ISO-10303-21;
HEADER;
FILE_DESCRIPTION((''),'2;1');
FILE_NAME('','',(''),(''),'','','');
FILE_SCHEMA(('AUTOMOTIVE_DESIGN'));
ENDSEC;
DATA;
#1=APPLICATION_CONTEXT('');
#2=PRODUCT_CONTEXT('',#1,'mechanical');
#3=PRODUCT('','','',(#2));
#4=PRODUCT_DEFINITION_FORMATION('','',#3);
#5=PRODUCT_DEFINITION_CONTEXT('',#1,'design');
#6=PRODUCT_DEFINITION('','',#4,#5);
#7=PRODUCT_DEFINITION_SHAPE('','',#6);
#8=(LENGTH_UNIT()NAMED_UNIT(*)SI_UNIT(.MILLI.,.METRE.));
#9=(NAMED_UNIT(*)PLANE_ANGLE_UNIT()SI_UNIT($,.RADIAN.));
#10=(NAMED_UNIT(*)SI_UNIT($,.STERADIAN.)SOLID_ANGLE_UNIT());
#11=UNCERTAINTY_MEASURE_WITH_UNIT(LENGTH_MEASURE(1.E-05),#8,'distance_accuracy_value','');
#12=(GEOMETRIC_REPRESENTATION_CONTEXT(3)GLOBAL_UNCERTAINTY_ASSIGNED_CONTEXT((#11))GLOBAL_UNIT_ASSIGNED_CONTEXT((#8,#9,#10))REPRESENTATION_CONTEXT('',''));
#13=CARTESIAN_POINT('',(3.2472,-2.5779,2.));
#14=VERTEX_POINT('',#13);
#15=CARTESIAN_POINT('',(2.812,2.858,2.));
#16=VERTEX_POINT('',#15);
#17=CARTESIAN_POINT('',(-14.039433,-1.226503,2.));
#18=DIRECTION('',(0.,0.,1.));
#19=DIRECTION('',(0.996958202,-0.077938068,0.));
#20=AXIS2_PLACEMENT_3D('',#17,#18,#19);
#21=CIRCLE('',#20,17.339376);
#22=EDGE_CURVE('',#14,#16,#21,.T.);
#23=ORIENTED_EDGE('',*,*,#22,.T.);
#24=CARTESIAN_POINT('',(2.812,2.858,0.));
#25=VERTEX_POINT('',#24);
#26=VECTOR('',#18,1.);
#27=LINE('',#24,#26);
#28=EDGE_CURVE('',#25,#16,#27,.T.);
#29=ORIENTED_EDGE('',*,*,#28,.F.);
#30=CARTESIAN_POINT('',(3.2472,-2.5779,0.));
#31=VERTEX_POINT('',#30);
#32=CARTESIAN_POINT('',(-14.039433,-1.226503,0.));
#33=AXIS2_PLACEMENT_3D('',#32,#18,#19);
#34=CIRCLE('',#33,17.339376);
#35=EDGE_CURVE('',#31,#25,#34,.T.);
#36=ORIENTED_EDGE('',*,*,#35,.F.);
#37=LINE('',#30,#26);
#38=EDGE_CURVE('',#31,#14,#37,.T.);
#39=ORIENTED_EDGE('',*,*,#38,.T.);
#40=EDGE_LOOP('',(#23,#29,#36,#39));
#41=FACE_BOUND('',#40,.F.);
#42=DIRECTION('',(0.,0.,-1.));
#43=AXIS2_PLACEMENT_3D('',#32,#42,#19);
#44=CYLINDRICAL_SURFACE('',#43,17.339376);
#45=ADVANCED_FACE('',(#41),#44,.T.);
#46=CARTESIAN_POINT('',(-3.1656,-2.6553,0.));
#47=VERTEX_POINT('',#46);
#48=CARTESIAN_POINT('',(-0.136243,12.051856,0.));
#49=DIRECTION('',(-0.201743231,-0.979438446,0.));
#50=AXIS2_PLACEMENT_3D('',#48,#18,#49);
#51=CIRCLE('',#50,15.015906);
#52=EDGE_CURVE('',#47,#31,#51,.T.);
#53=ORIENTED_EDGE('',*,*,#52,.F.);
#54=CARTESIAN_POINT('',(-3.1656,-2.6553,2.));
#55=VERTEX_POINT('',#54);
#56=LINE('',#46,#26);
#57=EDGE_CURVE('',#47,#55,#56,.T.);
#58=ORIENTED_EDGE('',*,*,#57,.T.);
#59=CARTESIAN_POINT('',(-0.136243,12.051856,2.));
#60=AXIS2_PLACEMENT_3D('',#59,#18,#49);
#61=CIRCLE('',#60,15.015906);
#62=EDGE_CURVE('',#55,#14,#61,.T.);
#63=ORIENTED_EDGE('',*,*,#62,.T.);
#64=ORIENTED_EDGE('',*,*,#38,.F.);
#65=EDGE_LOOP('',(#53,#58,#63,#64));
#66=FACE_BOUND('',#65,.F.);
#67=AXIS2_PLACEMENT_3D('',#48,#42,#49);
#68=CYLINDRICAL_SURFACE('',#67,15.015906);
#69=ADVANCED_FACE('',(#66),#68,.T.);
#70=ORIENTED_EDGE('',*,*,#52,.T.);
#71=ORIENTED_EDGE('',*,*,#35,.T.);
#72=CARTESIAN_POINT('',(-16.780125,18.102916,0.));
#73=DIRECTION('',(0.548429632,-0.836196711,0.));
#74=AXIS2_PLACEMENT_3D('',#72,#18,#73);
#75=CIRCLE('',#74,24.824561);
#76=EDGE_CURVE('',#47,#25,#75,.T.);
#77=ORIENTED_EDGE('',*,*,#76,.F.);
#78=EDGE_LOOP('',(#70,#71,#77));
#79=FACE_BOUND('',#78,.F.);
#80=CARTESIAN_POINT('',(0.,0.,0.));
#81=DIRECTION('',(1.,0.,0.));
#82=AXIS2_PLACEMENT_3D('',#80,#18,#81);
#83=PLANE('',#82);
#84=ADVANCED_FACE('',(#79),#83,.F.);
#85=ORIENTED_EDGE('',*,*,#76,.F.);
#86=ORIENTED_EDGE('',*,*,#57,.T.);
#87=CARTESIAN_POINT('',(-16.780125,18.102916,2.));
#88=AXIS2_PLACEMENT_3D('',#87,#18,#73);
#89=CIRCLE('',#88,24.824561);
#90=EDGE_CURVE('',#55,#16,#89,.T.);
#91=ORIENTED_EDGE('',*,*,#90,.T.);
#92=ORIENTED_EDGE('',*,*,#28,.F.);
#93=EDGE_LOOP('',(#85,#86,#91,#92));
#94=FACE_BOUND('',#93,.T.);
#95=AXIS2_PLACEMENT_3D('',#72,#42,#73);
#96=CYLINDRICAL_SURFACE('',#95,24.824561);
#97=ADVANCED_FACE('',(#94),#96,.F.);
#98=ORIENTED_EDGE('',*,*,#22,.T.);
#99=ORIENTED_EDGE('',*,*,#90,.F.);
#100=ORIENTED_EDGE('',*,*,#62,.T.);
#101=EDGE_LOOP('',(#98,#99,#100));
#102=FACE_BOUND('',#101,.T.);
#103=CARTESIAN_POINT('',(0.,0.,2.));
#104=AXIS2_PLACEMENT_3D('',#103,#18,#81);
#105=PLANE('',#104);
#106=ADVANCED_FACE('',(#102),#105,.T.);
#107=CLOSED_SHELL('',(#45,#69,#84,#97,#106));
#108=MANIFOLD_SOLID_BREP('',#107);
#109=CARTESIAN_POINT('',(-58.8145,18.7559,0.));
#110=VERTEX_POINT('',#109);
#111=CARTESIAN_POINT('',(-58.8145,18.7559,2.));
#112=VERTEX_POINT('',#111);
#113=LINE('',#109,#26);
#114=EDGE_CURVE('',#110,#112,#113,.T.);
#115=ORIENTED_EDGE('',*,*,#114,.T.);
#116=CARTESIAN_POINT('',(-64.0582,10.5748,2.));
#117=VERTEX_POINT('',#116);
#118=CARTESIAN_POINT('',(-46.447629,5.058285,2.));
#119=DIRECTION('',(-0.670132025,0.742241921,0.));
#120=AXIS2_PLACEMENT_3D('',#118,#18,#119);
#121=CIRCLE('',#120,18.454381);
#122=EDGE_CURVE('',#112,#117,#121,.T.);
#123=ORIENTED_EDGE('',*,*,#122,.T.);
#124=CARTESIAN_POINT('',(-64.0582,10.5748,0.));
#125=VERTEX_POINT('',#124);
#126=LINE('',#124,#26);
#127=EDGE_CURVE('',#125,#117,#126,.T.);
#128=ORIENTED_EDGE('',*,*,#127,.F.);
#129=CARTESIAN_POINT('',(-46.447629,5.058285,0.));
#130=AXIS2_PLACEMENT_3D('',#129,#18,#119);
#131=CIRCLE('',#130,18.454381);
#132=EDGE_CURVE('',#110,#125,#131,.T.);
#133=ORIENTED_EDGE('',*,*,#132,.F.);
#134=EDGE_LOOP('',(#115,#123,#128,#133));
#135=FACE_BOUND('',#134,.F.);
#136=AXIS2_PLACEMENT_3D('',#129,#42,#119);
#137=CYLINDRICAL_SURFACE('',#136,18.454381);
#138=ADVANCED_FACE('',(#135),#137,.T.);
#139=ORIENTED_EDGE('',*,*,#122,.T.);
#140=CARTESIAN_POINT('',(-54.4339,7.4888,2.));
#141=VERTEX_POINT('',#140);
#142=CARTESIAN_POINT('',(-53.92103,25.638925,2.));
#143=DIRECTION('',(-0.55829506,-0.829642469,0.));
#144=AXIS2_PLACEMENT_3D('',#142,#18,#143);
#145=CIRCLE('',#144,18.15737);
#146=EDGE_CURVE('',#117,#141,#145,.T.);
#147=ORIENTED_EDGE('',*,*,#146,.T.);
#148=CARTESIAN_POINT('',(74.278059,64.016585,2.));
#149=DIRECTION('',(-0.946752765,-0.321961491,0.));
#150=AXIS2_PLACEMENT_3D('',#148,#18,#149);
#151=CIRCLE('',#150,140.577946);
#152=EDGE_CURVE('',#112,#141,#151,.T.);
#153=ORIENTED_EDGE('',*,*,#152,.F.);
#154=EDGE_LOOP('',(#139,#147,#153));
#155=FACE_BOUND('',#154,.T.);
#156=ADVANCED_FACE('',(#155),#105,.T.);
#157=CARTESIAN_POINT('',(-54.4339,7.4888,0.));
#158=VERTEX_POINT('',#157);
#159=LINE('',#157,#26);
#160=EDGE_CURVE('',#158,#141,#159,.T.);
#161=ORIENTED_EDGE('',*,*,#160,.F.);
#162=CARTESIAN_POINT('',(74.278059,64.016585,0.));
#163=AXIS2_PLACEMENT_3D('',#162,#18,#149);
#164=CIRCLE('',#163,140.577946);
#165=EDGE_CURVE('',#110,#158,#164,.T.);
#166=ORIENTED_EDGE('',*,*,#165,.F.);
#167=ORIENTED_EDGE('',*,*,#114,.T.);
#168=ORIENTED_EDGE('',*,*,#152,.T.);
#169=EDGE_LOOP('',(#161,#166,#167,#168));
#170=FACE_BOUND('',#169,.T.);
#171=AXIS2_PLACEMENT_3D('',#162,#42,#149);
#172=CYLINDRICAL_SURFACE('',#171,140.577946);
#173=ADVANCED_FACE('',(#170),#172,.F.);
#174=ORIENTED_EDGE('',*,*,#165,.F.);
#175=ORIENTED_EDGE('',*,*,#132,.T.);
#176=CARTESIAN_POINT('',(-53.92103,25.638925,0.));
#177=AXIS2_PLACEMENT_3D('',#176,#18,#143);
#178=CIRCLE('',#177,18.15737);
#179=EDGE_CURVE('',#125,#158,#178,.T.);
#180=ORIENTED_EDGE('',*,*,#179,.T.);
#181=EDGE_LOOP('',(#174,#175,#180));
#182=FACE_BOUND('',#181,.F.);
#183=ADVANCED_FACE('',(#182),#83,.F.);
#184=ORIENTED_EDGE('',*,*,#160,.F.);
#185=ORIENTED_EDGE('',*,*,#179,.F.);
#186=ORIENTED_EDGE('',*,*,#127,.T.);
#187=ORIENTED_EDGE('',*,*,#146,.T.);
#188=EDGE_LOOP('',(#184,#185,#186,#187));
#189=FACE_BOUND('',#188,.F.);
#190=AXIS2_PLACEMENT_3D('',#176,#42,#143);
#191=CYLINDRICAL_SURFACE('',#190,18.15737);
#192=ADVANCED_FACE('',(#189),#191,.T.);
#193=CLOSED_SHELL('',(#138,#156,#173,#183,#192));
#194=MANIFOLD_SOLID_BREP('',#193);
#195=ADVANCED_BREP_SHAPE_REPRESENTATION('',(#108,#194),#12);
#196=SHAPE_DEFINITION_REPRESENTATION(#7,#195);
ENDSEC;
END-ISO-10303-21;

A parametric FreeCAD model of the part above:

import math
import FreeCAD as App
import Part
import Sketcher

V = App.Vector
Q = App.Units.Quantity

doc = App.newDocument("Part")
body = doc.addObject("PartDesign::Body", "Body")
body.AllowCompound = True

# Sketch on XY plane
sketch1 = body.newObject("Sketcher::SketchObject", "Sketch")
sketch1.AttachmentSupport = (doc.getObject("XY_Plane"), [""])
sketch1.MapMode = "FlatFace"
sketch1.addGeometry([
    Part.ArcOfCircle(Part.Circle(V(0, 12, 0), V(0, 0, 1), 15), math.radians(-102), math.radians(-77)),  # 0
    Part.ArcOfCircle(Part.Circle(V(-14, -1, 0), V(0, 0, 1), 17), math.radians(-4.47), math.radians(13.62)),  # 1
    Part.ArcOfCircle(Part.Circle(V(-17, 18, 0), V(0, 0, 1), 25), math.radians(-56.74), math.radians(-37.89)),  # 2
    Part.ArcOfCircle(Part.Circle(V(-46, 5, 0), V(0, 0, 1), 18), math.radians(132), math.radians(163)),  # 3
    Part.ArcOfCircle(Part.Circle(V(-54, 26, 0), V(0, 0, 1), 18), math.radians(-124), math.radians(-92)),  # 4
    Part.ArcOfCircle(Part.Circle(V(74, 64, 0), V(0, 0, 1), 141), math.radians(-161.22), math.radians(-156.29)),  # 5
], False)
sketch1.addConstraint([
    Sketcher.Constraint("Coincident", 0, 2, 1, 1),
    Sketcher.Constraint("Coincident", 1, 2, 2, 2),
    Sketcher.Constraint("Coincident", 2, 1, 0, 1),
    Sketcher.Constraint("Coincident", 3, 2, 4, 1),
    Sketcher.Constraint("Coincident", 4, 2, 5, 2),
    Sketcher.Constraint("Coincident", 5, 1, 3, 1),
    Sketcher.Constraint("Radius", 2, Q("24.824 mm")),
    Sketcher.Constraint("Radius", 3, Q("18.454 mm")),
    Sketcher.Constraint("Radius", 4, Q("18.158 mm")),
    Sketcher.Constraint("Radius", 5, Q("140.578 mm")),
    Sketcher.Constraint("Radius", 0, Q("15.0163 mm")),
    Sketcher.Constraint("Radius", 1, Q("17.3394 mm")),
    Sketcher.Constraint("DistanceX", 3, 3, 1, 2, Q("49.26 mm")),
    Sketcher.Constraint("DistanceY", 2, 1, 3, 2, Q("13.23 mm")),
    Sketcher.Constraint("DistanceX", 3, 3, -1, 1, Q("46.448 mm")),
    Sketcher.Constraint("DistanceX", -1, 1, 5, 3, Q("74.278 mm")),
    Sketcher.Constraint("DistanceY", 0, 2, -1, 1, Q("2.578 mm")),
    Sketcher.Constraint("DistanceY", -1, 1, 1, 2, Q("2.858 mm")),
    Sketcher.Constraint("DistanceX", 4, 2, -1, 1, Q("54.434 mm")),
    Sketcher.Constraint("DistanceY", -1, 1, 5, 1, Q("18.756 mm")),
    Sketcher.Constraint("DistanceY", 1, 3, 2, 3, Q("19.329 mm")),
    Sketcher.Constraint("DistanceY", 3, 3, 2, 3, Q("13.044 mm")),
    Sketcher.Constraint("DistanceX", 4, 3, 2, 3, Q("37.141 mm")),
    Sketcher.Constraint("DistanceY", 2, 3, 4, 3, Q("7.537 mm")),
])
pad1 = body.newObject("PartDesign::Pad", "Pad")
pad1.Profile = sketch1
pad1.Length = 2

doc.recompute()
